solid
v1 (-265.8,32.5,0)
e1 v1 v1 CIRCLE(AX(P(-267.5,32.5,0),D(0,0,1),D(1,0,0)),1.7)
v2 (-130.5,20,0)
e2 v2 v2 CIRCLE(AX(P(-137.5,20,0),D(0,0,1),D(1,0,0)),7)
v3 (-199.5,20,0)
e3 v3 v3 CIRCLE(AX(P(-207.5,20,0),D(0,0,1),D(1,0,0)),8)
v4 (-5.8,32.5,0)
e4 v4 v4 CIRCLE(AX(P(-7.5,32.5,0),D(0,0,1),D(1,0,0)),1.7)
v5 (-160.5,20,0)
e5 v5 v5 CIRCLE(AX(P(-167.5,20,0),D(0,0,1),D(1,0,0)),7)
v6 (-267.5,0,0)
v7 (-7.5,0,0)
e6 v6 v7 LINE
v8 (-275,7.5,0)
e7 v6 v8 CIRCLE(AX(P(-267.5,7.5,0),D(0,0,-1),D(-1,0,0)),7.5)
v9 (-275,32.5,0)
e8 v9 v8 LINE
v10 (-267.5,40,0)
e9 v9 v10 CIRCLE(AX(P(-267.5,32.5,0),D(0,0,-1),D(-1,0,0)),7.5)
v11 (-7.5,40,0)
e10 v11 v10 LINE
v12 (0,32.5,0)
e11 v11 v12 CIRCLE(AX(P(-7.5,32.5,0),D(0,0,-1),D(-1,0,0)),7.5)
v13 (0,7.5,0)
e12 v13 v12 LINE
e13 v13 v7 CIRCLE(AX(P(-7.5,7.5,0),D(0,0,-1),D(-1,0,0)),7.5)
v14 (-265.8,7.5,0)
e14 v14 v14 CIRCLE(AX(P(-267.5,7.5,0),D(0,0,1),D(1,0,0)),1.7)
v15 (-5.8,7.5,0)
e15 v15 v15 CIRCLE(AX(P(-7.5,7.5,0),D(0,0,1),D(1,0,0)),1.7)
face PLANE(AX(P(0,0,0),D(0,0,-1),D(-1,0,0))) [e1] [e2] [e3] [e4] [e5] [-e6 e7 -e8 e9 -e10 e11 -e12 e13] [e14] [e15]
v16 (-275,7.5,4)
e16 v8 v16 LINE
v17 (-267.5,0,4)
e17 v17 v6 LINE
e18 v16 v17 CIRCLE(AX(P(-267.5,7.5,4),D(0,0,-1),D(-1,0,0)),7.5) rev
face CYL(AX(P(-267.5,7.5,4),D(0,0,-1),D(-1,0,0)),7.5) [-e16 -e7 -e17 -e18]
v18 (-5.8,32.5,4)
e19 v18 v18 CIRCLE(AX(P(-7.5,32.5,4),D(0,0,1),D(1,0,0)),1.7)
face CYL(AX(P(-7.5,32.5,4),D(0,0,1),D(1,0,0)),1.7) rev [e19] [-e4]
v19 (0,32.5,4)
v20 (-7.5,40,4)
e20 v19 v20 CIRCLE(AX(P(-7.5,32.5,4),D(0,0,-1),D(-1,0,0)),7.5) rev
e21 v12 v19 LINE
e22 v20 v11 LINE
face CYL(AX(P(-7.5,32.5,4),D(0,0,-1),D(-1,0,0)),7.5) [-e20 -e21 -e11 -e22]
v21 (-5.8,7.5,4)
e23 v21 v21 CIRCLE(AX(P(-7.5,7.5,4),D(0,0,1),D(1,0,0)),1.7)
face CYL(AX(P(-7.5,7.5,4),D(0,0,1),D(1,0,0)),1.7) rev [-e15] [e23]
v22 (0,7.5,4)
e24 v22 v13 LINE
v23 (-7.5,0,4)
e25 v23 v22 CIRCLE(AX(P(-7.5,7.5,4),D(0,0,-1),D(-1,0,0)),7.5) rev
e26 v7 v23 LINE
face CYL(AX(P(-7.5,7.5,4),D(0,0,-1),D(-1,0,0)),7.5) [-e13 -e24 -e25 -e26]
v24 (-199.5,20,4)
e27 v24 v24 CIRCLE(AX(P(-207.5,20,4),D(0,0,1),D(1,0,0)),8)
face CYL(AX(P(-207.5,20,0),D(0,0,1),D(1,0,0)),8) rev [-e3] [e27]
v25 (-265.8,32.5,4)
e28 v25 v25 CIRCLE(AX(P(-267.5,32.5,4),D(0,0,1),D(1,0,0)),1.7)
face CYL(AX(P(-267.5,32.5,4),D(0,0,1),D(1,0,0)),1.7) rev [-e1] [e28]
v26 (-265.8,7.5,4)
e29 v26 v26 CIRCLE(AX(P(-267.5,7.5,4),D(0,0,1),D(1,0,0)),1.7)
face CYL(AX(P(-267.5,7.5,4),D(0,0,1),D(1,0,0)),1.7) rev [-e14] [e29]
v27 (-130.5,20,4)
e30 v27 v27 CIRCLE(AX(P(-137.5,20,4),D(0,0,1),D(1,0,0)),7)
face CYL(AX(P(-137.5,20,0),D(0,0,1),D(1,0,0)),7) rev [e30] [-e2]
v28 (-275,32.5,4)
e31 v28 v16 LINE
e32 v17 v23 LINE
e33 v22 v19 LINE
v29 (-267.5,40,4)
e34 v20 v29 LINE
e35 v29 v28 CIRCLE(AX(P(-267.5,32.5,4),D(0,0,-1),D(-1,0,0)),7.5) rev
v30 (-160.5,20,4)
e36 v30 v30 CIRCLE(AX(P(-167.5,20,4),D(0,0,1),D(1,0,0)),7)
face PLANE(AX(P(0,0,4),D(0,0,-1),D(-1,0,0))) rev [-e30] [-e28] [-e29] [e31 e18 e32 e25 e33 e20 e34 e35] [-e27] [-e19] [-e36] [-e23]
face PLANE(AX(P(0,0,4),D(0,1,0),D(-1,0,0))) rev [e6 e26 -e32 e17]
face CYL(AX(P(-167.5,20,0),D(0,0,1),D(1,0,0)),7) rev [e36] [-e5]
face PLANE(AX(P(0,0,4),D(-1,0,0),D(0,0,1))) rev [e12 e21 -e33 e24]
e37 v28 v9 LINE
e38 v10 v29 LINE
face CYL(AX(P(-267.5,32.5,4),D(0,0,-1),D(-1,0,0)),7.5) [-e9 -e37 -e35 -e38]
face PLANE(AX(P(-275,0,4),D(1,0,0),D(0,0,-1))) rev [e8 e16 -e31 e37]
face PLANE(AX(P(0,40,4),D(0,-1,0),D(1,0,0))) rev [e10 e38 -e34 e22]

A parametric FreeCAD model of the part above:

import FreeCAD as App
import Part
import Sketcher


def edges_at(feature, points):
    """Names of the edges that pass closest to the given points."""
    edges = feature.Shape.Edges
    near = lambda p: min(range(len(edges)), key=lambda i: edges[i].distToShape(Part.Vertex(*p))[0])
    return sorted({f"Edge{near(p) + 1}" for p in points})


def add_polygon(sketch, points):
    """Adds a closed chain of lines whose ends are joined by coincident constraints."""
    first, n = sketch.GeometryCount, len(points)
    for a, b in zip(points, points[1:] + points[:1]):
        sketch.addGeometry(Part.LineSegment(App.Vector(*a, 0), App.Vector(*b, 0)), False)
    for i in range(n):
        sketch.addConstraint(Sketcher.Constraint("Coincident", first + i, 2, first + (i + 1) % n, 1))

doc = App.newDocument("Part")
body = doc.addObject("PartDesign::Body", "Body")

# Sketch on XY plane
sketch1 = body.newObject("Sketcher::SketchObject", "Sketch")
sketch1.AttachmentSupport = (doc.getObject("XY_Plane"), [""])
sketch1.MapMode = "FlatFace"
add_polygon(sketch1, [(-275, 0), (0, 0), (0, 40), (-275, 40)])  # lines 0-3
sketch1.addConstraint(Sketcher.Constraint("Horizontal", 0))
sketch1.addConstraint(Sketcher.Constraint("Vertical", 1))
sketch1.addConstraint(Sketcher.Constraint("Horizontal", 2))
sketch1.addConstraint(Sketcher.Constraint("Vertical", 3))
sketch1.addConstraint(Sketcher.Constraint("Coincident", 0, 2, -1, 1))
sketch1.addConstraint(Sketcher.Constraint("DistanceX", 0, 1, 0, 2, 275.0))
sketch1.addConstraint(Sketcher.Constraint("DistanceY", 1, 1, 1, 2, 40.0))
pad1 = body.newObject("PartDesign::Pad", "Pad")
pad1.Profile = sketch1
pad1.Length = 4

# Sketch on XY plane
sketch2 = body.newObject("Sketcher::SketchObject", "Sketch001")
sketch2.AttachmentSupport = (doc.getObject("XY_Plane"), [""])
sketch2.MapMode = "FlatFace"
sketch2.AttachmentOffset = App.Placement(App.Vector(0, 0, 4), App.Rotation())
sketch2.addGeometry(Part.Circle(App.Vector(-207.5, 20, 0), App.Vector(0, 0, 1), 8), False)
sketch2.addGeometry(Part.Circle(App.Vector(-167.5, 20, 0), App.Vector(0, 0, 1), 7), False)
sketch2.addGeometry(Part.Circle(App.Vector(-137.5, 20, 0), App.Vector(0, 0, 1), 7), False)
sketch2.addConstraint(Sketcher.Constraint("Equal", 1, 2))
sketch2.addConstraint(Sketcher.Constraint("Horizontal", 0, 3, 1, 3))
sketch2.addConstraint(Sketcher.Constraint("Horizontal", 1, 3, 2, 3))
sketch2.addConstraint(Sketcher.Constraint("Diameter", 0, 16.0))
sketch2.addConstraint(Sketcher.Constraint("Diameter", 1, 14.0))
sketch2.addConstraint(Sketcher.Constraint("DistanceY", -1, 1, 0, 3, 20.0))
sketch2.addConstraint(Sketcher.Constraint("DistanceX", 0, 3, 1, 3, 40.0))
sketch2.addConstraint(Sketcher.Constraint("DistanceX", 1, 3, 2, 3, 30.0))
sketch2.addConstraint(Sketcher.Constraint("DistanceX", 0, 3, -1, 1, 207.5))
pocket1 = body.newObject("PartDesign::Pocket", "Pocket")
pocket1.Profile = sketch2
pocket1.Type = "ThroughAll"

# Sketch on XY plane
sketch3 = body.newObject("Sketcher::SketchObject", "Sketch002")
sketch3.AttachmentSupport = (doc.getObject("XY_Plane"), [""])
sketch3.MapMode = "FlatFace"
sketch3.AttachmentOffset = App.Placement(App.Vector(0, 0, 4), App.Rotation())
sketch3.addGeometry(Part.Circle(App.Vector(-267.5, 32.5, 0), App.Vector(0, 0, 1), 1.7), False)
sketch3.addGeometry(Part.Circle(App.Vector(-267.5, 7.5, 0), App.Vector(0, 0, 1), 1.7), False)
sketch3.addGeometry(Part.Circle(App.Vector(-7.5, 7.5, 0), App.Vector(0, 0, 1), 1.7), False)
sketch3.addGeometry(Part.Circle(App.Vector(-7.5, 32.5, 0), App.Vector(0, 0, 1), 1.7), False)
sketch3.addConstraint(Sketcher.Constraint("Equal", 0, 1))
sketch3.addConstraint(Sketcher.Constraint("Equal", 1, 2))
sketch3.addConstraint(Sketcher.Constraint("Equal", 2, 3))
sketch3.addConstraint(Sketcher.Constraint("Horizontal", 1, 3, 2, 3))
sketch3.addConstraint(Sketcher.Constraint("Horizontal", 0, 3, 3, 3))
sketch3.addConstraint(Sketcher.Constraint("Vertical", 0, 3, 1, 3))
sketch3.addConstraint(Sketcher.Constraint("Vertical", 2, 3, 3, 3))
sketch3.addConstraint(Sketcher.Constraint("Diameter", 0, 3.4))
sketch3.addConstraint(Sketcher.Constraint("DistanceY", 1, 3, 0, 3, 25.0))
sketch3.addConstraint(Sketcher.Constraint("DistanceX", 1, 3, 2, 3, 260.0))
sketch3.addConstraint(Sketcher.Constraint("DistanceX", 0, 3, -1, 1, 267.5))
sketch3.addConstraint(Sketcher.Constraint("DistanceY", -1, 1, 0, 3, 32.5))
doc.recompute()
hole = body.newObject("PartDesign::Hole", "Hole")
hole.Profile = sketch3
hole.ThreadType = "None"
hole.Diameter = 3.4
hole.DepthType = "ThroughAll"
doc.recompute()

fillet = body.newObject("PartDesign::Fillet", "Fillet")
fillet.Base = (hole, edges_at(hole, [
    (-275, 0, 2),
    (-275, 40, 2),
    (0, 40, 2),
    (0, 0, 2),
]))
fillet.Radius = 7.5

doc.recompute()
